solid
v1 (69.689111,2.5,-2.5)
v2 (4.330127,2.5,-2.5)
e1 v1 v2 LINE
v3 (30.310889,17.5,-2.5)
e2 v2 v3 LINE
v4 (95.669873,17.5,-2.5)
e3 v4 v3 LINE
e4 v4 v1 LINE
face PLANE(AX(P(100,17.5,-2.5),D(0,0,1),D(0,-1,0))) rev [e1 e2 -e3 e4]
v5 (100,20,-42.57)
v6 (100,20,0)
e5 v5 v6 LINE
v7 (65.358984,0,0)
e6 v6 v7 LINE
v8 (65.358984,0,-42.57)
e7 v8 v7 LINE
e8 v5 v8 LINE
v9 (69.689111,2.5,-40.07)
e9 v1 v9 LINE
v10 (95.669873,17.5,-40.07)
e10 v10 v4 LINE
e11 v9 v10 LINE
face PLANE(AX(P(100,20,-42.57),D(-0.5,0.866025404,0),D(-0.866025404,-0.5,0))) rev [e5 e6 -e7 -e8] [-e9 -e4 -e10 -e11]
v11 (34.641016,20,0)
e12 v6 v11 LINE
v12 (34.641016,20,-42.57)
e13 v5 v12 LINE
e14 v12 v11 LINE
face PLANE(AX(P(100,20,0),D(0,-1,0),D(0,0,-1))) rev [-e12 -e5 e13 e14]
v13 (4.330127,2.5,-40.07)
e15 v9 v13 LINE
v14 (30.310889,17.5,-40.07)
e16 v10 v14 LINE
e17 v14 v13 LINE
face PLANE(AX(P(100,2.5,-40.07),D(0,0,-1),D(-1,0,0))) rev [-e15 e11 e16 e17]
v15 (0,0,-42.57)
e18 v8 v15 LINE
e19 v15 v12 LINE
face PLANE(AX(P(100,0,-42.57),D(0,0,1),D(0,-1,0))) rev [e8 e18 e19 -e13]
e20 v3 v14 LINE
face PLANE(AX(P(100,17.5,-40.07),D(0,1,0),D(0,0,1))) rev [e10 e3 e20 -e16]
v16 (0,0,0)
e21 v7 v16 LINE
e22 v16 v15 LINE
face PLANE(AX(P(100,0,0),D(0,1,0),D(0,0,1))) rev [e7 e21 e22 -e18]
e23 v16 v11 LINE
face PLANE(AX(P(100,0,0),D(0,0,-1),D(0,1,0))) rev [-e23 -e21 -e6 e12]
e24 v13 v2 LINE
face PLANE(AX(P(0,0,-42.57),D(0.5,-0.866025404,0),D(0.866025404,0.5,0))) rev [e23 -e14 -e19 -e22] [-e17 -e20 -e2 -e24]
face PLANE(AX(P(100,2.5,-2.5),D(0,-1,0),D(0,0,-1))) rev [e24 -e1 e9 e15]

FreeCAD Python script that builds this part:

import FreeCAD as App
import Part
import Sketcher
from FreeCAD import Vector
Q = App.Units.Quantity


def add_polygon(sketch, points):
    """Adds a closed chain of lines whose ends are joined by coincident constraints."""
    first, n = sketch.GeometryCount, len(points)
    for a, b in zip(points, points[1:] + points[:1]):
        sketch.addGeometry(Part.LineSegment(App.Vector(*a, 0), App.Vector(*b, 0)), False)
    for i in range(n):
        sketch.addConstraint(Sketcher.Constraint("Coincident", first + i, 2, first + (i + 1) % n, 1))

doc = App.newDocument("Part")
body = doc.addObject("PartDesign::Body", "Body")

sketch1 = doc.addObject("Sketcher::SketchObject", "Sketch")
body.addObject(sketch1)
sketch1.AttachmentSupport = (doc.YZ_Plane, [""])
sketch1.MapMode = "FlatFace"
add_polygon(sketch1, [(20, 0), (0, 0), (0, -43), (20, -43)])
sketch1.addConstraint([
    Sketcher.Constraint("Horizontal", 0),
    Sketcher.Constraint("Vertical", 1),
    Sketcher.Constraint("Horizontal", 2),
    Sketcher.Constraint("Vertical", 3),
    Sketcher.Constraint("Coincident", 0, 2, -1, 1),
    Sketcher.Constraint("DistanceX", 0, 2, 0, 1, Q("20 mm")),
    Sketcher.Constraint("DistanceY", 1, 2, 1, 1, Q("42.57 mm")),
])
pad1 = doc.addObject("PartDesign::Pad", "Pad")
body.addObject(pad1)
pad1.Profile = sketch1
pad1.Length = 100

sketch2 = doc.addObject("Sketcher::SketchObject", "Sketch001")
body.addObject(sketch2)
sketch2.AttachmentSupport = (doc.YZ_Plane, [""])
sketch2.MapMode = "FlatFace"
add_polygon(sketch2, [(18, -40), (2, -40), (2, -2), (18, -2)])
sketch2.addConstraint([
    Sketcher.Constraint("Horizontal", 0),
    Sketcher.Constraint("Vertical", 1),
    Sketcher.Constraint("Horizontal", 2),
    Sketcher.Constraint("Vertical", 3),
    Sketcher.Constraint("DistanceX", 0, 2, 0, 1, Q("15 mm")),
    Sketcher.Constraint("DistanceY", 1, 1, 1, 2, Q("37.57 mm")),
    Sketcher.Constraint("DistanceX", -1, 1, 0, 2, Q("2.5 mm")),
    Sketcher.Constraint("DistanceY", 1, 2, -1, 1, Q("2.5 mm")),
])
pocket1 = doc.addObject("PartDesign::Pocket", "Pocket")
body.addObject(pocket1)
pocket1.Profile = sketch2
pocket1.Type = "ThroughAll"
pocket1.Reversed = True

sketch3 = doc.addObject("Sketcher::SketchObject", "Sketch002")
body.addObject(sketch3)
sketch3.AttachmentSupport = (doc.XY_Plane, [""])
sketch3.MapMode = "FlatFace"
add_polygon(sketch3, [(0, 0), (35, 20), (0, 20)])
add_polygon(sketch3, [(100, 20), (65, 0), (100, 0)])
sketch3.addConstraint([
    Sketcher.Constraint("Horizontal", 1),
    Sketcher.Constraint("Vertical", 2),
    Sketcher.Constraint("Horizontal", 4),
    Sketcher.Constraint("Vertical", 5),
    Sketcher.Constraint("Coincident", 2, 2, -1, 1),
    Sketcher.Constraint("PointOnObject", 3, 2, -1),
    Sketcher.Constraint("Parallel", 0, 3),
    Sketcher.Constraint("Horizontal", 1, 2, 5, 2),
    Sketcher.Constraint("DistanceY", 2, 2, 2, 1, Q("20 mm")),
    Sketcher.Constraint("Angle", 0, Q("30 deg")),
    Sketcher.Constraint("DistanceX", -1, 1, 4, 2, Q("100 mm")),
])
pocket2 = doc.addObject("PartDesign::Pocket", "Pocket001")
body.addObject(pocket2)
pocket2.Profile = sketch3
pocket2.Type = "ThroughAll"

doc.recompute()
